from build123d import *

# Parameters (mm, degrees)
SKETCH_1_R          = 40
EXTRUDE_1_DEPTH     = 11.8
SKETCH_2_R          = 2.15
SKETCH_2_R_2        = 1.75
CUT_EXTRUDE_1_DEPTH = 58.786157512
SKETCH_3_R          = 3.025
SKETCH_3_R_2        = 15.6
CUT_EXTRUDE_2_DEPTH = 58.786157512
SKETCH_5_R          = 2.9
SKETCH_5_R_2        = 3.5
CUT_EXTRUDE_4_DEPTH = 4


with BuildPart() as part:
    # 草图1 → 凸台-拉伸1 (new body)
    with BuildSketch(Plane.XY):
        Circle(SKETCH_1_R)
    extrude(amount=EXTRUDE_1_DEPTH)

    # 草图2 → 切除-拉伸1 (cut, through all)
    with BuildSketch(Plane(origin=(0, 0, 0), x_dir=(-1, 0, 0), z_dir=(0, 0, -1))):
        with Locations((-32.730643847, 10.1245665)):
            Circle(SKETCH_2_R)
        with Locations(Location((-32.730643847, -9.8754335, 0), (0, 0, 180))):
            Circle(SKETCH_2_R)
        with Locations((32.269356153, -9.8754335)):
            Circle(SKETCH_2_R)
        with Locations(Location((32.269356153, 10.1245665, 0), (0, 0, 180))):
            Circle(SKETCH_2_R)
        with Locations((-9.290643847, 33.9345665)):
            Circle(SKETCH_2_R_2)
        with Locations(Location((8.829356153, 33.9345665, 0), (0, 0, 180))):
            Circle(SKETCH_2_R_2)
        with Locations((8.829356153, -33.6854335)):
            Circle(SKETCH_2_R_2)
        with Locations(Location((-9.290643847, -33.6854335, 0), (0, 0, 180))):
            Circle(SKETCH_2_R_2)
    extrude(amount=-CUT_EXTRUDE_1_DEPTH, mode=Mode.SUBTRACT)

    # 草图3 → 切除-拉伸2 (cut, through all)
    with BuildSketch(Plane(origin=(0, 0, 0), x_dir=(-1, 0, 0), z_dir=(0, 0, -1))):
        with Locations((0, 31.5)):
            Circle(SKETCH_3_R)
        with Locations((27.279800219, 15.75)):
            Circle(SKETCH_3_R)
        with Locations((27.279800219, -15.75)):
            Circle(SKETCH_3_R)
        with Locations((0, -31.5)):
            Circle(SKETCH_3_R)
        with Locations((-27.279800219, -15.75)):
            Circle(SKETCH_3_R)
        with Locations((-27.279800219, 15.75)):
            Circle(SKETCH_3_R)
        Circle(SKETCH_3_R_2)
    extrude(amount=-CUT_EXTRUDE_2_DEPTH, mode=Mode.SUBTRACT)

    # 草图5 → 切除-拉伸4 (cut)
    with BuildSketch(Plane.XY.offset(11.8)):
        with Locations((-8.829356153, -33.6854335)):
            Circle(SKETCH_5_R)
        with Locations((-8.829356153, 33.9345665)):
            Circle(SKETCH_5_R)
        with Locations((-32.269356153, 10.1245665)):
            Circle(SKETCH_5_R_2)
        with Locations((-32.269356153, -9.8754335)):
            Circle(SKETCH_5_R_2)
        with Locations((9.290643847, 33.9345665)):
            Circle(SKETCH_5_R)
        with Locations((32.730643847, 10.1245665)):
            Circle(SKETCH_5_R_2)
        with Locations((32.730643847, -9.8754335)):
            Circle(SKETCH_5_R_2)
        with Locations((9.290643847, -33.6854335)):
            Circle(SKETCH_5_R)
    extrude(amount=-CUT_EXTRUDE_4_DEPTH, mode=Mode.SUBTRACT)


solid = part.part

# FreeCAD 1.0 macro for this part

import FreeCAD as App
import Part
import Sketcher
Q = App.Units.Quantity

doc = App.newDocument("Part")
body = doc.addObject("PartDesign::Body", "Body")

sketch1 = body.newObject("Sketcher::SketchObject", "Sketch")
sketch1.AttachmentSupport = (doc.getObject("XY_Plane"), [""])
sketch1.MapMode = "FlatFace"
sketch1.addGeometry(Part.Circle(App.Vector(0, 0, 0), App.Vector(0, 0, 1), 40), False)
sketch1.addConstraint(Sketcher.Constraint("Coincident", 0, 3, -1, 1))
sketch1.addConstraint(Sketcher.Constraint("Diameter", 0, Q("80 mm")))
pad1 = body.newObject("PartDesign::Pad", "Pad")
pad1.Profile = sketch1
pad1.Length = 11.8

sketch2 = body.newObject("Sketcher::SketchObject", "Sketch001")
sketch2.AttachmentSupport = (doc.getObject("XY_Plane"), [""])
sketch2.MapMode = "FlatFace"
sketch2.addGeometry(Part.Circle(App.Vector(32.730644, 10.124567, 0), App.Vector(0, 0, 1), 2.15), False)
sketch2.addGeometry(Part.Circle(App.Vector(32.730644, -9.875433, 0), App.Vector(0, 0, 1), 2.15), False)
sketch2.addGeometry(Part.Circle(App.Vector(-32.269356, -9.875433, 0), App.Vector(0, 0, 1), 2.15), False)
sketch2.addGeometry(Part.Circle(App.Vector(-32.269356, 10.124567, 0), App.Vector(0, 0, 1), 2.15), False)
sketch2.addGeometry(Part.Circle(App.Vector(9.290644, 33.934567, 0), App.Vector(0, 0, 1), 1.75), False)
sketch2.addGeometry(Part.Circle(App.Vector(-8.829356, 33.934567, 0), App.Vector(0, 0, 1), 1.75), False)
sketch2.addGeometry(Part.Circle(App.Vector(-8.829356, -33.685434, 0), App.Vector(0, 0, 1), 1.75), False)
sketch2.addGeometry(Part.Circle(App.Vector(9.290644, -33.685434, 0), App.Vector(0, 0, 1), 1.75), False)
sketch2.addConstraint(Sketcher.Constraint("Equal", 0, 1))
sketch2.addConstraint(Sketcher.Constraint("Equal", 1, 2))
sketch2.addConstraint(Sketcher.Constraint("Equal", 2, 3))
sketch2.addConstraint(Sketcher.Constraint("Equal", 4, 5))
sketch2.addConstraint(Sketcher.Constraint("Equal", 5, 6))
sketch2.addConstraint(Sketcher.Constraint("Equal", 6, 7))
sketch2.addConstraint(Sketcher.Constraint("Horizontal", 1, 3, 2, 3))
sketch2.addConstraint(Sketcher.Constraint("Horizontal", 0, 3, 3, 3))
sketch2.addConstraint(Sketcher.Constraint("Horizontal", 4, 3, 5, 3))
sketch2.addConstraint(Sketcher.Constraint("Horizontal", 6, 3, 7, 3))
sketch2.addConstraint(Sketcher.Constraint("Vertical", 0, 3, 1, 3))
sketch2.addConstraint(Sketcher.Constraint("Vertical", 2, 3, 3, 3))
sketch2.addConstraint(Sketcher.Constraint("Vertical", 5, 3, 6, 3))
sketch2.addConstraint(Sketcher.Constraint("Vertical", 4, 3, 7, 3))
sketch2.addConstraint(Sketcher.Constraint("Diameter", 0, Q("4.3 mm")))
sketch2.addConstraint(Sketcher.Constraint("Diameter", 4, Q("3.5 mm")))
sketch2.addConstraint(Sketcher.Constraint("DistanceY", 1, 3, 0, 3, Q("20 mm")))
sketch2.addConstraint(Sketcher.Constraint("DistanceX", 2, 3, 1, 3, Q("65 mm")))
sketch2.addConstraint(Sketcher.Constraint("DistanceX", 4, 3, 0, 3, Q("23.44 mm")))
sketch2.addConstraint(Sketcher.Constraint("DistanceY", 0, 3, 4, 3, Q("23.81 mm")))
sketch2.addConstraint(Sketcher.Constraint("DistanceX", 5, 3, 4, 3, Q("18.12 mm")))
sketch2.addConstraint(Sketcher.Constraint("DistanceY", 6, 3, 2, 3, Q("23.81 mm")))
sketch2.addConstraint(Sketcher.Constraint("DistanceX", -1, 1, 0, 3, Q("32.730644 mm")))
sketch2.addConstraint(Sketcher.Constraint("DistanceY", -1, 1, 0, 3, Q("10.124567 mm")))
pocket1 = body.newObject("PartDesign::Pocket", "Pocket")
pocket1.Profile = sketch2
pocket1.Type = "ThroughAll"
pocket1.Reversed = True

sketch3 = body.newObject("Sketcher::SketchObject", "Sketch002")
sketch3.AttachmentSupport = (doc.getObject("XY_Plane"), [""])
sketch3.MapMode = "FlatFace"
sketch3.addGeometry(Part.Circle(App.Vector(0, 31.5, 0), App.Vector(0, 0, 1), 3.025), False)
sketch3.addGeometry(Part.Circle(App.Vector(-27.2798, 15.75, 0), App.Vector(0, 0, 1), 3.025), False)
sketch3.addGeometry(Part.Circle(App.Vector(-27.2798, -15.75, 0), App.Vector(0, 0, 1), 3.025), False)
sketch3.addGeometry(Part.Circle(App.Vector(0, -31.5, 0), App.Vector(0, 0, 1), 3.025), False)
sketch3.addGeometry(Part.Circle(App.Vector(27.2798, -15.75, 0), App.Vector(0, 0, 1), 3.025), False)
sketch3.addGeometry(Part.Circle(App.Vector(27.2798, 15.75, 0), App.Vector(0, 0, 1), 3.025), False)
sketch3.addGeometry(Part.Circle(App.Vector(0, 0, 0), App.Vector(0, 0, 1), 15.6), False)
sketch3.addConstraint(Sketcher.Constraint("Coincident", 6, 3, -1, 1))
sketch3.addConstraint(Sketcher.Constraint("Equal", 0, 1))
sketch3.addConstraint(Sketcher.Constraint("Equal", 1, 2))
sketch3.addConstraint(Sketcher.Constraint("Equal", 2, 3))
sketch3.addConstraint(Sketcher.Constraint("Equal", 3, 4))
sketch3.addConstraint(Sketcher.Constraint("Equal", 4, 5))
sketch3.addConstraint(Sketcher.Constraint("Symmetric", 0, 3, 3, 3, -1, 1))
sketch3.addConstraint(Sketcher.Constraint("Symmetric", 1, 3, 4, 3, -1, 1))
sketch3.addConstraint(Sketcher.Constraint("Symmetric", 2, 3, 5, 3, -1, 1))
sketch3.addConstraint(Sketcher.Constraint("Symmetric", 2, 3, 4, 3, -2))
sketch3.addConstraint(Sketcher.Constraint("PointOnObject", 0, 3, -2))
sketch3.addConstraint(Sketcher.Constraint("Diameter", 6, Q("31.2 mm")))
sketch3.addConstraint(Sketcher.Constraint("Diameter", 0, Q("6.05 mm")))
sketch3.addConstraint(Sketcher.Constraint("DistanceY", 3, 3, 0, 3, Q("63 mm")))
sketch3.addConstraint(Sketcher.Constraint("DistanceY", 2, 3, 1, 3, Q("31.5 mm")))
sketch3.addConstraint(Sketcher.Constraint("DistanceX", 1, 3, -1, 1, Q("27.2798 mm")))
pocket2 = body.newObject("PartDesign::Pocket", "Pocket001")
pocket2.Profile = sketch3
pocket2.Type = "ThroughAll"
pocket2.Reversed = True

sketch4 = body.newObject("Sketcher::SketchObject", "Sketch003")
sketch4.AttachmentSupport = (doc.getObject("XY_Plane"), [""])
sketch4.MapMode = "FlatFace"
sketch4.AttachmentOffset = App.Placement(App.Vector(0, 0, 11.8), App.Rotation())
sketch4.addGeometry(Part.Circle(App.Vector(-8.829356, -33.685434, 0), App.Vector(0, 0, 1), 2.9), False)
sketch4.addGeometry(Part.Circle(App.Vector(-8.829356, 33.934567, 0), App.Vector(0, 0, 1), 2.9), False)
sketch4.addGeometry(Part.Circle(App.Vector(-32.269356, 10.124567, 0), App.Vector(0, 0, 1), 3.5), False)
sketch4.addGeometry(Part.Circle(App.Vector(-32.269356, -9.875433, 0), App.Vector(0, 0, 1), 3.5), False)
sketch4.addGeometry(Part.Circle(App.Vector(9.290644, 33.934567, 0), App.Vector(0, 0, 1), 2.9), False)
sketch4.addGeometry(Part.Circle(App.Vector(32.730644, 10.124567, 0), App.Vector(0, 0, 1), 3.5), False)
sketch4.addGeometry(Part.Circle(App.Vector(32.730644, -9.875433, 0), App.Vector(0, 0, 1), 3.5), False)
sketch4.addGeometry(Part.Circle(App.Vector(9.290644, -33.685434, 0), App.Vector(0, 0, 1), 2.9), False)
sketch4.addConstraint(Sketcher.Constraint("Equal", 0, 1))
sketch4.addConstraint(Sketcher.Constraint("Equal", 2, 3))
sketch4.addConstraint(Sketcher.Constraint("Equal", 1, 4))
sketch4.addConstraint(Sketcher.Constraint("Equal", 3, 5))
sketch4.addConstraint(Sketcher.Constraint("Equal", 5, 6))
sketch4.addConstraint(Sketcher.Constraint("Equal", 4, 7))
sketch4.addConstraint(Sketcher.Constraint("Horizontal", 1, 3, 4, 3))
sketch4.addConstraint(Sketcher.Constraint("Horizontal", 2, 3, 5, 3))
sketch4.addConstraint(Sketcher.Constraint("Horizontal", 3, 3, 6, 3))
sketch4.addConstraint(Sketcher.Constraint("Horizontal", 0, 3, 7, 3))
sketch4.addConstraint(Sketcher.Constraint("Vertical", 0, 3, 1, 3))
sketch4.addConstraint(Sketcher.Constraint("Vertical", 2, 3, 3, 3))
sketch4.addConstraint(Sketcher.Constraint("Vertical", 5, 3, 6, 3))
sketch4.addConstraint(Sketcher.Constraint("Vertical", 4, 3, 7, 3))
sketch4.addConstraint(Sketcher.Constraint("Diameter", 2, Q("7 mm")))
sketch4.addConstraint(Sketcher.Constraint("Diameter", 0, Q("5.8 mm")))
sketch4.addConstraint(Sketcher.Constraint("DistanceY", 3, 3, 2, 3, Q("20 mm")))
sketch4.addConstraint(Sketcher.Constraint("DistanceX", 2, 3, 5, 3, Q("65 mm")))
sketch4.addConstraint(Sketcher.Constraint("DistanceY", 0, 3, 1, 3, Q("67.62 mm")))
sketch4.addConstraint(Sketcher.Constraint("DistanceX", 2, 3, 1, 3, Q("23.44 mm")))
sketch4.addConstraint(Sketcher.Constraint("DistanceY", 2, 3, 1, 3, Q("23.81 mm")))
sketch4.addConstraint(Sketcher.Constraint("DistanceX", 1, 3, 4, 3, Q("18.12 mm")))
sketch4.addConstraint(Sketcher.Constraint("DistanceX", 0, 3, -1, 1, Q("8.829356 mm")))
sketch4.addConstraint(Sketcher.Constraint("DistanceY", 0, 3, -1, 1, Q("33.685434 mm")))
pocket3 = body.newObject("PartDesign::Pocket", "Pocket002")
pocket3.Profile = sketch4
pocket3.Length = 4

doc.recompute()
